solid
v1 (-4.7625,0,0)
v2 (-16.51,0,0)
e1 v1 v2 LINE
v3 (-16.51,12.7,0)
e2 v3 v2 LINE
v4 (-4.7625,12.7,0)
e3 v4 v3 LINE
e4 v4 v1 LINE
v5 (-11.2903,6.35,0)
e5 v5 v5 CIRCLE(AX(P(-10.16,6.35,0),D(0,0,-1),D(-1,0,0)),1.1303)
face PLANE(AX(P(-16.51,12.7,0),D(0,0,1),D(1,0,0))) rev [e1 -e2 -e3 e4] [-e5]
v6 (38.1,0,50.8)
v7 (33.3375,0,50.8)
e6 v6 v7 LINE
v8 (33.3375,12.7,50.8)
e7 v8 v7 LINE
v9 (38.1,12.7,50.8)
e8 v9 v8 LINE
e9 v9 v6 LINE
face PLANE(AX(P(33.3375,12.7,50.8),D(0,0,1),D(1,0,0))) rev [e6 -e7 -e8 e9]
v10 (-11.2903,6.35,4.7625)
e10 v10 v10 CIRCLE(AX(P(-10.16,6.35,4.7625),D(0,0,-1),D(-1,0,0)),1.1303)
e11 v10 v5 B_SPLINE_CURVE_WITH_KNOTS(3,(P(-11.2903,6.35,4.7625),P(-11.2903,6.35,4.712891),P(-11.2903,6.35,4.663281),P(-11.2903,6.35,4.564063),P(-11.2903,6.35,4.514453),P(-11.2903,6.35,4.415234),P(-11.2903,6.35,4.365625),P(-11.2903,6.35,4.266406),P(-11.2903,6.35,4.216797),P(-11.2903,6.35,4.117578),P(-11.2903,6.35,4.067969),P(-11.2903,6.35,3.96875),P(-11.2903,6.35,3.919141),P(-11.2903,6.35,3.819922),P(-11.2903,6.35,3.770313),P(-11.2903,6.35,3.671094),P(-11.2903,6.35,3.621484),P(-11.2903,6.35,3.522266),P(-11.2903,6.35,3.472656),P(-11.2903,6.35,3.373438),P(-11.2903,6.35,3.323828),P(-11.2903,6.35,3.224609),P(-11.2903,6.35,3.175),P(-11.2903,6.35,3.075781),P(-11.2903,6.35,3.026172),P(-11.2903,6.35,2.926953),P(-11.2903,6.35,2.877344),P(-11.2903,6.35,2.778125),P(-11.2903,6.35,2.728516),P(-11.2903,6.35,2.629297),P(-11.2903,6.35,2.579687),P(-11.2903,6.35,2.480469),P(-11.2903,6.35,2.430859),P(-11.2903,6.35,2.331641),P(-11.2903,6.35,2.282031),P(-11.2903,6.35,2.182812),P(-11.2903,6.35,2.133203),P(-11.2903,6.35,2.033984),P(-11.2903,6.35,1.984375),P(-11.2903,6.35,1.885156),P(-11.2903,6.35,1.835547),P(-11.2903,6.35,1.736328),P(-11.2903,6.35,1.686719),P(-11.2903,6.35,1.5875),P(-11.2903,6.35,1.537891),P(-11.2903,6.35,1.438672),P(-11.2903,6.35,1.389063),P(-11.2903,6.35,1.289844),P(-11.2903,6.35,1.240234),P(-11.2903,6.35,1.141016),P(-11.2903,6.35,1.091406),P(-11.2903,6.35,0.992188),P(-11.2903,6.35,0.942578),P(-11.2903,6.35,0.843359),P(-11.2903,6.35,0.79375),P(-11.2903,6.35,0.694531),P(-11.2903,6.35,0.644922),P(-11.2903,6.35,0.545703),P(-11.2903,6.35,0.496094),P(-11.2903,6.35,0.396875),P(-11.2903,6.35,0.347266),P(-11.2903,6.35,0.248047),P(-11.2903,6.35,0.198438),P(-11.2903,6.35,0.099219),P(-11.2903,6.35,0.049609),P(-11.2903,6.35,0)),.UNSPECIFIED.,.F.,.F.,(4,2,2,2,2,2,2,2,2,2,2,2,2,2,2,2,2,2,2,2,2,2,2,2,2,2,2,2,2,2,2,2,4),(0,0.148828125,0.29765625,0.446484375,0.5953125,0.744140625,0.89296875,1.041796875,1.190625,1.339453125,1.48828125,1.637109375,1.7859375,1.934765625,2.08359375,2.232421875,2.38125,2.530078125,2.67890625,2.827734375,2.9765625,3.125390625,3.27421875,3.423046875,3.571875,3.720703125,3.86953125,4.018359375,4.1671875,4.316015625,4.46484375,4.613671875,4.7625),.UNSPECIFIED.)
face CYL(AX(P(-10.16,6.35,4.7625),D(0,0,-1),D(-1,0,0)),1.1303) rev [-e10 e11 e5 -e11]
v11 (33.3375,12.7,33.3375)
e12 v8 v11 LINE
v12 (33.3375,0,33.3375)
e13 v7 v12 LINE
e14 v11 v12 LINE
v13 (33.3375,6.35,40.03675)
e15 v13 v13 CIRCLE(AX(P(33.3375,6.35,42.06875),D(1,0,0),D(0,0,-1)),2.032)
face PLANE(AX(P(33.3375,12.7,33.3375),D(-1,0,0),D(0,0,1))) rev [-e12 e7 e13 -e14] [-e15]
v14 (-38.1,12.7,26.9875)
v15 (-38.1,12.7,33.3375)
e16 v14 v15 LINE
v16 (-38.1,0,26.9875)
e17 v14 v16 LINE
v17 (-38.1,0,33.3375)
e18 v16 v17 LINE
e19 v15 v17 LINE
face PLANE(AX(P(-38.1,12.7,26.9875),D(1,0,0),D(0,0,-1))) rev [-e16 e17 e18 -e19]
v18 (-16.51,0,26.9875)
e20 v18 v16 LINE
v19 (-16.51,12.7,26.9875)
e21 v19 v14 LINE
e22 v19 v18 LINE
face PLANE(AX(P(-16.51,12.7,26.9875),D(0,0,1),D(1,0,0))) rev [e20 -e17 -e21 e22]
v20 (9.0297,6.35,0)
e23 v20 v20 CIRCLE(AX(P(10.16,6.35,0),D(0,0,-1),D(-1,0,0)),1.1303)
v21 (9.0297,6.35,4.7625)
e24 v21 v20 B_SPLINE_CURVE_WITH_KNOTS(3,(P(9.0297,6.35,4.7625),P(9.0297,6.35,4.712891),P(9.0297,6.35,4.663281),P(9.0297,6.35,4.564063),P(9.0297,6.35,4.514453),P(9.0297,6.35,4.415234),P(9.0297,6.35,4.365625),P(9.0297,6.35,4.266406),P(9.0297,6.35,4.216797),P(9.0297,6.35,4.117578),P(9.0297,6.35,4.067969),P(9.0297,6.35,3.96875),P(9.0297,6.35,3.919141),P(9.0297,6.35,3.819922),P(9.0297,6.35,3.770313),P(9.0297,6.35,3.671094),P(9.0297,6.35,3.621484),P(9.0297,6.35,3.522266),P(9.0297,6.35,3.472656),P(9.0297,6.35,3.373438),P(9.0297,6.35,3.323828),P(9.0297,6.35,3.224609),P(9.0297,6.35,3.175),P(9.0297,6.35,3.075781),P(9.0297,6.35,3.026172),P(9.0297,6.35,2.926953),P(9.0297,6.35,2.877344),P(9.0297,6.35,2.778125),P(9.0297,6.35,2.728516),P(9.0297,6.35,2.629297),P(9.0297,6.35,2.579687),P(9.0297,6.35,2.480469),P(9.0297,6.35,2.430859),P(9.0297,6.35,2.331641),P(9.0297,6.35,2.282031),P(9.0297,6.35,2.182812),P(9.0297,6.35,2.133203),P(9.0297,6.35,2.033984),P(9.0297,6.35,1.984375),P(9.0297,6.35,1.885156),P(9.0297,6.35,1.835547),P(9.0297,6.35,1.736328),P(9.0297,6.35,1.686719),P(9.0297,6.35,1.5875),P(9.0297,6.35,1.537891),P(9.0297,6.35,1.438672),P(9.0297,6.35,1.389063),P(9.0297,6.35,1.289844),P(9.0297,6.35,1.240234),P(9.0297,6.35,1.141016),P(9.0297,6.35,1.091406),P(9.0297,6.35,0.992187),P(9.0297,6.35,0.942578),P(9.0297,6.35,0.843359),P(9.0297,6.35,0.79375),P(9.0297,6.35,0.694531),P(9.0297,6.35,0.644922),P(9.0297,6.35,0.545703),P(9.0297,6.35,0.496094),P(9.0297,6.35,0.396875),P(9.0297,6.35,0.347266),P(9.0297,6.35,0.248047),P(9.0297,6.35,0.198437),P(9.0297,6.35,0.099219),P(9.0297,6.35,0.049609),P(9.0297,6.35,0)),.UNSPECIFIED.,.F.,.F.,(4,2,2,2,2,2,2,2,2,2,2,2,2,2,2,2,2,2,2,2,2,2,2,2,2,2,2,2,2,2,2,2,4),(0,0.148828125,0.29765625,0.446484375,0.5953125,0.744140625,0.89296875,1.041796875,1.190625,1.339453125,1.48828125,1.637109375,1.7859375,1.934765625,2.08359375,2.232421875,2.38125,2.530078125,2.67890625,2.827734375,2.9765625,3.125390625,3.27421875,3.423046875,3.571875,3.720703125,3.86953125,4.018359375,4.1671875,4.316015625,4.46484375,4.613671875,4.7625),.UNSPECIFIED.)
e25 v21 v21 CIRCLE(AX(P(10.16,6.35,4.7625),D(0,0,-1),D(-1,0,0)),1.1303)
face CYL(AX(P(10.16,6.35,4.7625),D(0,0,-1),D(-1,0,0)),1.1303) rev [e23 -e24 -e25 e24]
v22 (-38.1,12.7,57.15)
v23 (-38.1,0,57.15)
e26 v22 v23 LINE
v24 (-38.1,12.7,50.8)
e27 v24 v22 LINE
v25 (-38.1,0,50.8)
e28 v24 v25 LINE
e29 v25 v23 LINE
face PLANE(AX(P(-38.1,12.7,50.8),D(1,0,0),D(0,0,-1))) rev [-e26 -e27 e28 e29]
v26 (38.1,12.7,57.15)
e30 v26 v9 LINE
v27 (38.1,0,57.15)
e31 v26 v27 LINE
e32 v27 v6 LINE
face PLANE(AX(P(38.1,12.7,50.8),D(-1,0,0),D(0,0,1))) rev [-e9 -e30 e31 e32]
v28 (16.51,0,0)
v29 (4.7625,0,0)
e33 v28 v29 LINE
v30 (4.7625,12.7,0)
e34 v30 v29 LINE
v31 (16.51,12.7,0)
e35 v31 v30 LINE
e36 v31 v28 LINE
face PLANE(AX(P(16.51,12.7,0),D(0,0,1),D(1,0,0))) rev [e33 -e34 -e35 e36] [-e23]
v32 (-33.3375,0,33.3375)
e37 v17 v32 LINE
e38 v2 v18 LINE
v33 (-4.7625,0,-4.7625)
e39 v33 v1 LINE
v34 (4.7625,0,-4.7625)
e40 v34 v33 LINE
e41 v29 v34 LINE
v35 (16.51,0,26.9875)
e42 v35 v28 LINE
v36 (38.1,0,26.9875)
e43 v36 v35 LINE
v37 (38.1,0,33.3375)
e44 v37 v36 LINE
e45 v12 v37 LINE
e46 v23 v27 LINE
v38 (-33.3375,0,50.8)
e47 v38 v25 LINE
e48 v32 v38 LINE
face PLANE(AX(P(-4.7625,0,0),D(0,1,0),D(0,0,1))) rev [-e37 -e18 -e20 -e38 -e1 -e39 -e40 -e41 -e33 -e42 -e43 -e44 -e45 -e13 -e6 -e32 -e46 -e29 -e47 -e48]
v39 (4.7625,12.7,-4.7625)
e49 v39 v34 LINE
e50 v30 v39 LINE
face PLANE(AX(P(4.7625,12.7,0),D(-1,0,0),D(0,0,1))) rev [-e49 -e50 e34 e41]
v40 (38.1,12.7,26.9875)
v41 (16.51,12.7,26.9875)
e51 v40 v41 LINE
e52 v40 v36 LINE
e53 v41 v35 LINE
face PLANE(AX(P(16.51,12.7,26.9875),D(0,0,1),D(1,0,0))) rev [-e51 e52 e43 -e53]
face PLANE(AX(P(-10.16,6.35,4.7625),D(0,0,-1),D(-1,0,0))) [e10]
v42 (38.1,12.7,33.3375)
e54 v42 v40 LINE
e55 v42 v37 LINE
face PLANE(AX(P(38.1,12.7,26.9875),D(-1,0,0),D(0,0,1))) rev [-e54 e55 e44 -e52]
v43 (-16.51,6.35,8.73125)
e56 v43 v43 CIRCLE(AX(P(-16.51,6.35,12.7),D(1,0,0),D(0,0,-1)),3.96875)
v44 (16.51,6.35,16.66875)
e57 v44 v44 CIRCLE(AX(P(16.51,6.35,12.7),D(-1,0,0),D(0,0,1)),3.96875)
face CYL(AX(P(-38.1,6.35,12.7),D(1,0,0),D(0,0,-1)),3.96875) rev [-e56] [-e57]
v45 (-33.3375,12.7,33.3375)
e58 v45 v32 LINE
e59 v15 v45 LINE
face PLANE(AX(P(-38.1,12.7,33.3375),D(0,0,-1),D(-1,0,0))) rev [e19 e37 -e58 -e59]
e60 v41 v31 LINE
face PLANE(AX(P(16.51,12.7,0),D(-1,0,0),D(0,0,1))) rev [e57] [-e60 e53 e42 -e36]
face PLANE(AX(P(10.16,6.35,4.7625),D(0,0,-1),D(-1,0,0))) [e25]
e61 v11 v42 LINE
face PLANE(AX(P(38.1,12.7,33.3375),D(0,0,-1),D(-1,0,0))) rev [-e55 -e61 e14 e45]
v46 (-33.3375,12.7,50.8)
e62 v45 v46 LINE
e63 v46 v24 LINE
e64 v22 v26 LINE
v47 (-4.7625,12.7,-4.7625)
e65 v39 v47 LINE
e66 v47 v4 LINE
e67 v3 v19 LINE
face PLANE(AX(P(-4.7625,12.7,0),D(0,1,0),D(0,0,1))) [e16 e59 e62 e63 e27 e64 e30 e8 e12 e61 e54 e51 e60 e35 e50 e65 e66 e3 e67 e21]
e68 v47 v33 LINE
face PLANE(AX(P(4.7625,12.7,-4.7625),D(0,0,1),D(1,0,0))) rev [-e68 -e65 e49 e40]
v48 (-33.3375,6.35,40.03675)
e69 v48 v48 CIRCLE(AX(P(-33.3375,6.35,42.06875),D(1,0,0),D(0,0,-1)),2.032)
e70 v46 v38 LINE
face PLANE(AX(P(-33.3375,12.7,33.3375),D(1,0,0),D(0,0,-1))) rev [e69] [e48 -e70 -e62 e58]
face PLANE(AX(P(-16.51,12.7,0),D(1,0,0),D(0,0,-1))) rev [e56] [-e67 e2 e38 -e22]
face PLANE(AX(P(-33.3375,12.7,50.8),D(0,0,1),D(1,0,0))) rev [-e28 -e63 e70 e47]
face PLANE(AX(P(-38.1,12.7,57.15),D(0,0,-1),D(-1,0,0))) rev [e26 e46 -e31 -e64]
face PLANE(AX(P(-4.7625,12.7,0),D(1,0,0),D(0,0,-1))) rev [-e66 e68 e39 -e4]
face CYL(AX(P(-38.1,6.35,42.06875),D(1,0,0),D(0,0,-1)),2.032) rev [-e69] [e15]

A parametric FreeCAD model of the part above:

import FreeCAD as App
import Part
import Sketcher
Q = App.Units.Quantity


def add_polygon(sketch, points):
    """Adds a closed chain of lines whose ends are joined by coincident constraints."""
    first, n = sketch.GeometryCount, len(points)
    for a, b in zip(points, points[1:] + points[:1]):
        sketch.addGeometry(Part.LineSegment(App.Vector(*a, 0), App.Vector(*b, 0)), False)
    for i in range(n):
        sketch.addConstraint(Sketcher.Constraint("Coincident", first + i, 2, first + (i + 1) % n, 1))

doc = App.newDocument("Part")
body = doc.addObject("PartDesign::Body", "Body")

sketch1 = body.newObject("Sketcher::SketchObject", "Sketch")
sketch1.AttachmentSupport = (doc.getObject("XZ_Plane"), [""])
sketch1.MapMode = "FlatFace"
add_polygon(sketch1, [(16.5, 0), (4.8, 0), (4.8, -4.8), (-4.8, -4.8), (-4.8, 0), (-16.5, 0), (-16.5, 27), (-38.1, 27), (-38.1, 33.3), (-33.3, 33.3), (-33.3, 50.8), (-38.1, 50.8), (-38.1, 57.1), (38.1, 57.1), (38.1, 50.8), (33.3, 50.8), (33.3, 33.3), (38.1, 33.3), (38.1, 27), (16.5, 27)])
sketch1.addConstraint(Sketcher.Constraint("Horizontal", 0))
sketch1.addConstraint(Sketcher.Constraint("Vertical", 1))
sketch1.addConstraint(Sketcher.Constraint("Horizontal", 2))
sketch1.addConstraint(Sketcher.Constraint("Vertical", 3))
sketch1.addConstraint(Sketcher.Constraint("Horizontal", 4))
sketch1.addConstraint(Sketcher.Constraint("Vertical", 5))
sketch1.addConstraint(Sketcher.Constraint("Horizontal", 6))
sketch1.addConstraint(Sketcher.Constraint("Vertical", 7))
sketch1.addConstraint(Sketcher.Constraint("Horizontal", 8))
sketch1.addConstraint(Sketcher.Constraint("Vertical", 9))
sketch1.addConstraint(Sketcher.Constraint("Horizontal", 10))
sketch1.addConstraint(Sketcher.Constraint("Vertical", 11))
sketch1.addConstraint(Sketcher.Constraint("Horizontal", 12))
sketch1.addConstraint(Sketcher.Constraint("Vertical", 13))
sketch1.addConstraint(Sketcher.Constraint("Horizontal", 14))
sketch1.addConstraint(Sketcher.Constraint("Vertical", 15))
sketch1.addConstraint(Sketcher.Constraint("Horizontal", 16))
sketch1.addConstraint(Sketcher.Constraint("Vertical", 17))
sketch1.addConstraint(Sketcher.Constraint("Horizontal", 18))
sketch1.addConstraint(Sketcher.Constraint("Vertical", 19))
sketch1.addConstraint(Sketcher.Constraint("Symmetric", 0, 2, 3, 2, -1, 1))
sketch1.addConstraint(Sketcher.Constraint("Symmetric", 10, 2, 13, 2, -2))
sketch1.addConstraint(Sketcher.Constraint("Symmetric", 8, 2, 15, 2, -2))
sketch1.addConstraint(Sketcher.Constraint("Symmetric", 6, 2, 17, 2, -2))
sketch1.addConstraint(Sketcher.Constraint("Symmetric", 4, 2, 19, 2, -2))
sketch1.addConstraint(Sketcher.Constraint("Vertical", 7, 2, 10, 2))
sketch1.addConstraint(Sketcher.Constraint("Equal", 16, 1))
sketch1.addConstraint(Sketcher.Constraint("Equal", 7, 11))
sketch1.addConstraint(Sketcher.Constraint("DistanceX", 12, 1, 12, 2, Q("3 in")))
sketch1.addConstraint(Sketcher.Constraint("DistanceY", -1, 1, 9, 2, Q("2 in")))
sketch1.addConstraint(Sketcher.Constraint("DistanceX", 6, 2, 6, 1, Q("0.85 in")))
sketch1.addConstraint(Sketcher.Constraint("DistanceY", 7, 1, 7, 2, Q("0.25 in")))
sketch1.addConstraint(Sketcher.Constraint("DistanceY", 2, 2, 7, 2, Q("1.5 in")))
sketch1.addConstraint(Sketcher.Constraint("DistanceX", 2, 2, 2, 1, Q("0.375 in")))
sketch1.addConstraint(Sketcher.Constraint("DistanceX", 8, 1, 8, 2, Q("0.1875 in")))
pad1 = body.newObject("PartDesign::Pad", "Pad")
pad1.Profile = sketch1
pad1.Length = Q("0.5 in")
pad1.Reversed = True

sketch2 = body.newObject("Sketcher::SketchObject", "Sketch001")
sketch2.AttachmentSupport = (doc.getObject("YZ_Plane"), [""])
sketch2.MapMode = "FlatFace"
sketch2.AttachmentOffset = App.Placement(App.Vector(0, 0, 1.3125 * 25.4), App.Rotation())
sketch2.addGeometry(Part.Circle(App.Vector(6.3, 42.1, 0), App.Vector(0, 0, 1), 2), False)
sketch2.addGeometry(Part.Circle(App.Vector(6.3, 12.7, 0), App.Vector(0, 0, 1), 4), False)
sketch2.addConstraint(Sketcher.Constraint("Vertical", 0, 3, 1, 3))
sketch2.addConstraint(Sketcher.Constraint("Diameter", 0, Q("0.16 in")))
sketch2.addConstraint(Sketcher.Constraint("Diameter", 1, Q("0.3125 in")))
sketch2.addConstraint(Sketcher.Constraint("DistanceY", -1, 1, 1, 3, Q("0.5 in")))
sketch2.addConstraint(Sketcher.Constraint("DistanceX", -1, 1, 0, 3, Q("0.25 in")))
sketch2.addConstraint(Sketcher.Constraint("DistanceY", -1, 1, 0, 3, Q("1.65625 in")))
pocket1 = body.newObject("PartDesign::Pocket", "Pocket")
pocket1.Profile = sketch2
pocket1.Type = "ThroughAll"

sketch3 = body.newObject("Sketcher::SketchObject", "Sketch002")
sketch3.AttachmentSupport = (doc.getObject("XY_Plane"), [""])
sketch3.MapMode = "FlatFace"
sketch3.addGeometry(Part.Circle(App.Vector(10.2, 6.3, 0), App.Vector(0, 0, 1), 1.1), False)
sketch3.addGeometry(Part.Circle(App.Vector(-10.2, 6.3, 0), App.Vector(0, 0, 1), 1.1), False)
sketch3.addConstraint(Sketcher.Constraint("Equal", 0, 1))
sketch3.addConstraint(Sketcher.Constraint("Symmetric", 0, 3, 1, 3, -2))
sketch3.addConstraint(Sketcher.Constraint("Diameter", 0, Q("0.089 in")))
sketch3.addConstraint(Sketcher.Constraint("DistanceX", -1, 1, 0, 3, Q("0.4 in")))
sketch3.addConstraint(Sketcher.Constraint("DistanceY", -1, 1, 0, 3, Q("0.25 in")))
pocket2 = body.newObject("PartDesign::Pocket", "Pocket001")
pocket2.Profile = sketch3
pocket2.Length = Q("0.1875 in")
pocket2.Reversed = True

doc.recompute()
